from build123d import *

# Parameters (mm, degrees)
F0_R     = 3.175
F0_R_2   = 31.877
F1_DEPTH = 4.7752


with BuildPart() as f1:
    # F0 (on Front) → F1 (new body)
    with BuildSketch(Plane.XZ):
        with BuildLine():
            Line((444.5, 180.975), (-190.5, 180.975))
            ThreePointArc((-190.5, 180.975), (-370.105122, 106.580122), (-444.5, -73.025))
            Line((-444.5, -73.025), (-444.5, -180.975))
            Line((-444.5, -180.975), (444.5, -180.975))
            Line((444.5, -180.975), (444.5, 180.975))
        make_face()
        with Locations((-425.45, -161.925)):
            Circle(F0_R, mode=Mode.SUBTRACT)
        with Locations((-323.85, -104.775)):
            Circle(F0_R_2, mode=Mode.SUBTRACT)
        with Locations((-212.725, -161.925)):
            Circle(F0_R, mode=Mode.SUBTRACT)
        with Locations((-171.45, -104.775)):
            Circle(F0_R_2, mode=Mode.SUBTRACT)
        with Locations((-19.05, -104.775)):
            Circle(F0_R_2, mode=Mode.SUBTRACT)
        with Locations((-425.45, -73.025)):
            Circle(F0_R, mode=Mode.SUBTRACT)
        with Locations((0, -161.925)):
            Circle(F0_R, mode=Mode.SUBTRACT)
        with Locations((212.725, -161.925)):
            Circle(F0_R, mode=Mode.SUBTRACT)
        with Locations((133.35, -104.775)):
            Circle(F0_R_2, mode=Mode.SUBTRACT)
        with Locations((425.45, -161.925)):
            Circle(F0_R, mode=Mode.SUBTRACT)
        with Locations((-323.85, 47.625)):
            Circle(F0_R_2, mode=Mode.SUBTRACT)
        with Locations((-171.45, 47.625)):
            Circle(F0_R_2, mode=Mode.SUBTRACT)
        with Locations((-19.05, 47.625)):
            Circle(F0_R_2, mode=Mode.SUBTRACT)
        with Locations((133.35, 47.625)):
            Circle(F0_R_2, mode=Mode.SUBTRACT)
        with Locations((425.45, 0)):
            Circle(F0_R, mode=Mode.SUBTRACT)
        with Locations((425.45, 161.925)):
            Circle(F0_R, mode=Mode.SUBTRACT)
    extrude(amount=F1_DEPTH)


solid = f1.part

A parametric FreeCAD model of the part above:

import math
import FreeCAD as App
import Part
import Sketcher
from FreeCAD import Vector
Q = App.Units.Quantity

doc = App.newDocument("Part")
body = doc.addObject("PartDesign::Body", "Body")

sketch1 = body.newObject("Sketcher::SketchObject", "Sketch")
sketch1.AttachmentSupport = (doc.getObject("XZ_Plane"), [""])
sketch1.MapMode = "FlatFace"
sketch1.addGeometry(Part.LineSegment(Vector(444.5, 180.975, 0), Vector(-190.5, 180.975, 0)), False)
sketch1.addGeometry(Part.ArcOfCircle(Part.Circle(Vector(-190.499999, -73.025001, 0), Vector(0, 0, 1), 254.000001), math.radians(90), math.radians(180)), False)
sketch1.addGeometry(Part.LineSegment(Vector(-444.5, -73.025, 0), Vector(-444.5, -180.975, 0)), False)
sketch1.addGeometry(Part.LineSegment(Vector(-444.5, -180.975, 0), Vector(444.5, -180.975, 0)), False)
sketch1.addGeometry(Part.LineSegment(Vector(444.5, -180.975, 0), Vector(444.5, 180.975, 0)), False)
sketch1.addGeometry(Part.Circle(Vector(-425.45, -161.925, 0), Vector(0, 0, 1), 3.175), False)
sketch1.addGeometry(Part.Circle(Vector(-323.85, -104.775, 0), Vector(0, 0, 1), 31.877), False)
sketch1.addGeometry(Part.Circle(Vector(-212.725, -161.925, 0), Vector(0, 0, 1), 3.175), False)
sketch1.addGeometry(Part.Circle(Vector(-171.45, -104.775, 0), Vector(0, 0, 1), 31.877), False)
sketch1.addGeometry(Part.Circle(Vector(-19.05, -104.775, 0), Vector(0, 0, 1), 31.877), False)
sketch1.addGeometry(Part.Circle(Vector(-425.45, -73.025, 0), Vector(0, 0, 1), 3.175), False)
sketch1.addGeometry(Part.Circle(Vector(0, -161.925, 0), Vector(0, 0, 1), 3.175), False)
sketch1.addGeometry(Part.Circle(Vector(212.725, -161.925, 0), Vector(0, 0, 1), 3.175), False)
sketch1.addGeometry(Part.Circle(Vector(133.35, -104.775, 0), Vector(0, 0, 1), 31.877), False)
sketch1.addGeometry(Part.Circle(Vector(425.45, -161.925, 0), Vector(0, 0, 1), 3.175), False)
sketch1.addGeometry(Part.Circle(Vector(-323.85, 47.625, 0), Vector(0, 0, 1), 31.877), False)
sketch1.addGeometry(Part.Circle(Vector(-171.45, 47.625, 0), Vector(0, 0, 1), 31.877), False)
sketch1.addGeometry(Part.Circle(Vector(-19.05, 47.625, 0), Vector(0, 0, 1), 31.877), False)
sketch1.addGeometry(Part.Circle(Vector(133.35, 47.625, 0), Vector(0, 0, 1), 31.877), False)
sketch1.addGeometry(Part.Circle(Vector(425.45, 0, 0), Vector(0, 0, 1), 3.175), False)
sketch1.addGeometry(Part.Circle(Vector(425.45, 161.925, 0), Vector(0, 0, 1), 3.175), False)
sketch1.addConstraint(Sketcher.Constraint("Tangent", 0, 2, 1, 1))
sketch1.addConstraint(Sketcher.Constraint("Tangent", 1, 2, 2, 1))
sketch1.addConstraint(Sketcher.Constraint("Coincident", 2, 2, 3, 1))
sketch1.addConstraint(Sketcher.Constraint("Coincident", 3, 2, 4, 1))
sketch1.addConstraint(Sketcher.Constraint("Coincident", 4, 2, 0, 1))
sketch1.addConstraint(Sketcher.Constraint("Horizontal", 0))
sketch1.addConstraint(Sketcher.Constraint("Vertical", 2))
sketch1.addConstraint(Sketcher.Constraint("Horizontal", 3))
sketch1.addConstraint(Sketcher.Constraint("Vertical", 4))
sketch1.addConstraint(Sketcher.Constraint("Equal", 5, 7))
sketch1.addConstraint(Sketcher.Constraint("Equal", 6, 8))
sketch1.addConstraint(Sketcher.Constraint("Equal", 8, 9))
sketch1.addConstraint(Sketcher.Constraint("Equal", 7, 10))
sketch1.addConstraint(Sketcher.Constraint("Equal", 10, 11))
sketch1.addConstraint(Sketcher.Constraint("Equal", 11, 12))
sketch1.addConstraint(Sketcher.Constraint("Equal", 9, 13))
sketch1.addConstraint(Sketcher.Constraint("Equal", 12, 14))
sketch1.addConstraint(Sketcher.Constraint("Equal", 13, 15))
sketch1.addConstraint(Sketcher.Constraint("Equal", 15, 16))
sketch1.addConstraint(Sketcher.Constraint("Equal", 16, 17))
sketch1.addConstraint(Sketcher.Constraint("Equal", 17, 18))
sketch1.addConstraint(Sketcher.Constraint("Equal", 14, 19))
sketch1.addConstraint(Sketcher.Constraint("Equal", 19, 20))
sketch1.addConstraint(Sketcher.Constraint("Symmetric", 5, 3, 20, 3, -1, 1))
sketch1.addConstraint(Sketcher.Constraint("Symmetric", 2, 2, 4, 2, -1, 1))
sketch1.addConstraint(Sketcher.Constraint("Symmetric", 7, 3, 12, 3, -2))
sketch1.addConstraint(Sketcher.Constraint("Symmetric", 5, 3, 14, 3, -2))
sketch1.addConstraint(Sketcher.Constraint("PointOnObject", 11, 3, -2))
sketch1.addConstraint(Sketcher.Constraint("PointOnObject", 19, 3, -1))
sketch1.addConstraint(Sketcher.Constraint("Horizontal", 5, 3, 7, 3))
sketch1.addConstraint(Sketcher.Constraint("Horizontal", 6, 3, 8, 3))
sketch1.addConstraint(Sketcher.Constraint("Horizontal", 8, 3, 9, 3))
sketch1.addConstraint(Sketcher.Constraint("Horizontal", 1, 3, 10, 3))
sketch1.addConstraint(Sketcher.Constraint("Horizontal", 7, 3, 11, 3))
sketch1.addConstraint(Sketcher.Constraint("Horizontal", 9, 3, 13, 3))
sketch1.addConstraint(Sketcher.Constraint("Horizontal", 15, 3, 16, 3))
sketch1.addConstraint(Sketcher.Constraint("Horizontal", 16, 3, 17, 3))
sketch1.addConstraint(Sketcher.Constraint("Horizontal", 17, 3, 18, 3))
sketch1.addConstraint(Sketcher.Constraint("Vertical", 5, 3, 10, 3))
sketch1.addConstraint(Sketcher.Constraint("Vertical", 6, 3, 15, 3))
sketch1.addConstraint(Sketcher.Constraint("Vertical", 8, 3, 16, 3))
sketch1.addConstraint(Sketcher.Constraint("Vertical", 9, 3, 17, 3))
sketch1.addConstraint(Sketcher.Constraint("Vertical", 13, 3, 18, 3))
sketch1.addConstraint(Sketcher.Constraint("Vertical", 14, 3, 19, 3))
sketch1.addConstraint(Sketcher.Constraint("Radius", 1, Q("10.0000001 in")))
sketch1.addConstraint(Sketcher.Constraint("Diameter", 5, Q("0.25 in")))
sketch1.addConstraint(Sketcher.Constraint("Diameter", 6, Q("2.51 in")))
sketch1.addConstraint(Sketcher.Constraint("DistanceX", 0, 2, 0, 1, Q("25 in")))
sketch1.addConstraint(Sketcher.Constraint("DistanceX", 5, 3, 6, 3, Q("4 in")))
sketch1.addConstraint(Sketcher.Constraint("DistanceX", 6, 3, 8, 3, Q("6 in")))
sketch1.addConstraint(Sketcher.Constraint("DistanceX", 8, 3, 9, 3, Q("6 in")))
sketch1.addConstraint(Sketcher.Constraint("DistanceX", 9, 3, 13, 3, Q("6 in")))
sketch1.addConstraint(Sketcher.Constraint("DistanceY", 6, 3, 15, 3, Q("6 in")))
sketch1.addConstraint(Sketcher.Constraint("DistanceY", 2, 2, 6, 3, Q("3 in")))
sketch1.addConstraint(Sketcher.Constraint("DistanceY", 2, 2, 2, 1, Q("4.25 in")))
sketch1.addConstraint(Sketcher.Constraint("DistanceY", 5, 3, 1, 3, Q("3.4999999 in")))
sketch1.addConstraint(Sketcher.Constraint("DistanceX", 13, 3, 14, 3, Q("11.5 in")))
sketch1.addConstraint(Sketcher.Constraint("DistanceX", 7, 3, 12, 3, Q("16.75 in")))
pad1 = body.newObject("PartDesign::Pad", "Pad")
pad1.Profile = sketch1
pad1.Length = Q("0.188 in")

doc.recompute()
